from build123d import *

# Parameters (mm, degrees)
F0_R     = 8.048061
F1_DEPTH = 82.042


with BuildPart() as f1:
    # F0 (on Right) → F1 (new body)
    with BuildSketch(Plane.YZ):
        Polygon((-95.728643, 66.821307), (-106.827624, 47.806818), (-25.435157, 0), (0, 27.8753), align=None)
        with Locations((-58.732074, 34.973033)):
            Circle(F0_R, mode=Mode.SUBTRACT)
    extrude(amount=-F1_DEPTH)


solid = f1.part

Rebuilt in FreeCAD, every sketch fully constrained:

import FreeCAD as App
import Part
import Sketcher
Q = App.Units.Quantity

doc = App.newDocument("Part")
body = doc.addObject("PartDesign::Body", "Body")

# Sketch on YZ plane
sketch1 = body.newObject("Sketcher::SketchObject", "Sketch")
sketch1.AttachmentSupport = (doc.getObject("YZ_Plane"), [""])
sketch1.MapMode = "FlatFace"
sketch1.addGeometry(Part.LineSegment(App.Vector(-96, 67, 0), App.Vector(-107, 48, 0)), False)
sketch1.addGeometry(Part.LineSegment(App.Vector(-107, 48, 0), App.Vector(-25, 0, 0)), False)
sketch1.addGeometry(Part.LineSegment(App.Vector(-25, 0, 0), App.Vector(0, 28, 0)), False)
sketch1.addGeometry(Part.LineSegment(App.Vector(0, 28, 0), App.Vector(-96, 67, 0)), False)
sketch1.addGeometry(Part.Circle(App.Vector(-59, 35, 0), App.Vector(0, 0, 1), 8), False)
sketch1.addConstraint(Sketcher.Constraint("Coincident", 0, 2, 1, 1))
sketch1.addConstraint(Sketcher.Constraint("Coincident", 1, 2, 2, 1))
sketch1.addConstraint(Sketcher.Constraint("Coincident", 2, 2, 3, 1))
sketch1.addConstraint(Sketcher.Constraint("Coincident", 3, 2, 0, 1))
sketch1.addConstraint(Sketcher.Constraint("PointOnObject", 1, 2, -1))
sketch1.addConstraint(Sketcher.Constraint("PointOnObject", 2, 2, -2))
sketch1.addConstraint(Sketcher.Constraint("Diameter", 4, 16.096122))
sketch1.addConstraint(Sketcher.Constraint("DistanceY", -1, 1, 2, 2, 27.8753))
sketch1.addConstraint(Sketcher.Constraint("Distance", 0, 22.01677))
sketch1.addConstraint(Sketcher.Constraint("Distance", 1, 94.393991))
sketch1.addConstraint(Sketcher.Constraint("DistanceX", 0, 2, 4, 3, 48.09555))
sketch1.addConstraint(Sketcher.Constraint("DistanceY", 2, 2, 0, 2, 19.931518))
sketch1.addConstraint(Sketcher.Constraint("DistanceX", 0, 2, 3, 2, 11.098981))
sketch1.addConstraint(Sketcher.Constraint("Distance", 2, 37.735654))
sketch1.addConstraint(Sketcher.Constraint("DistanceY", -1, 1, 4, 3, 34.973033))
pad1 = body.newObject("PartDesign::Pad", "Pad")
pad1.Profile = sketch1
pad1.Length = Q("3.23 in")
pad1.Reversed = True

doc.recompute()
